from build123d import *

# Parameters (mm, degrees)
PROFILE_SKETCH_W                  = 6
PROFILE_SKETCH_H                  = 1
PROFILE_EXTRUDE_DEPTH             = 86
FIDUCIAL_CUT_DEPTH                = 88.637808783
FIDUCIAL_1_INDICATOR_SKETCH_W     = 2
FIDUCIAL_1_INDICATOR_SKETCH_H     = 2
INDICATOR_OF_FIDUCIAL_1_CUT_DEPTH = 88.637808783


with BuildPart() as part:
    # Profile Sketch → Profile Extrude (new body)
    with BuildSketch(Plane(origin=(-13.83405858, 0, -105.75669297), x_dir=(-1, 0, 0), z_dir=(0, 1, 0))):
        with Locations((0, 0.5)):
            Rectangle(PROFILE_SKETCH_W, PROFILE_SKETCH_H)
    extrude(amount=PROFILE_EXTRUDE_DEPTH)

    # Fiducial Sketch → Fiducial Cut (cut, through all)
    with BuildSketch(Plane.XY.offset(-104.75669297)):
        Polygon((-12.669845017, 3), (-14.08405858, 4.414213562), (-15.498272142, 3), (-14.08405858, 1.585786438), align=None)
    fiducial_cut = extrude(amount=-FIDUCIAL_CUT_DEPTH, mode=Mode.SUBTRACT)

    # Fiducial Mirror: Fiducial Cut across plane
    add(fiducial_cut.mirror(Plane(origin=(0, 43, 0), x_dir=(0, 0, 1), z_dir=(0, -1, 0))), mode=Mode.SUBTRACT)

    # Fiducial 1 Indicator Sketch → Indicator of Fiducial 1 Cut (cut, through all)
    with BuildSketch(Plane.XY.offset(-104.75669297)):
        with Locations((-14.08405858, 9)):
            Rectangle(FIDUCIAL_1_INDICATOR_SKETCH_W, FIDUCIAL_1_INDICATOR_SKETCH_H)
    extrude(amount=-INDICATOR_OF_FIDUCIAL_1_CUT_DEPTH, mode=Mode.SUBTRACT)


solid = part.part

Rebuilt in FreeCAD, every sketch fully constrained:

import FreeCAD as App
import Part
import Sketcher

V = App.Vector
Q = App.Units.Quantity

doc = App.newDocument("Part")
body = doc.addObject("PartDesign::Body", "Body")

sketch1 = body.newObject("Sketcher::SketchObject", "Sketch")
sketch1.AttachmentSupport = (doc.getObject("XZ_Plane"), [""])
sketch1.MapMode = "FlatFace"
sketch1.addGeometry([
    Part.LineSegment(V(-10.8, -104.8, 0), V(-10.8, -105.8, 0)),
    Part.LineSegment(V(-10.8, -105.8, 0), V(-16.8, -105.8, 0)),
    Part.LineSegment(V(-16.8, -105.8, 0), V(-16.8, -104.8, 0)),
    Part.LineSegment(V(-16.8, -104.8, 0), V(-10.8, -104.8, 0)),
], False)
sketch1.addConstraint([
    Sketcher.Constraint("Coincident", 0, 2, 1, 1),
    Sketcher.Constraint("Coincident", 1, 2, 2, 1),
    Sketcher.Constraint("Coincident", 2, 2, 3, 1),
    Sketcher.Constraint("Coincident", 3, 2, 0, 1),
    Sketcher.Constraint("Vertical", 0),
    Sketcher.Constraint("Horizontal", 1),
    Sketcher.Constraint("Vertical", 2),
    Sketcher.Constraint("Horizontal", 3),
    Sketcher.Constraint("DistanceX", 1, 2, 1, 1, Q("6 mm")),
    Sketcher.Constraint("DistanceY", 0, 2, 0, 1, Q("1 mm")),
    Sketcher.Constraint("DistanceX", 0, 2, -1, 1, Q("10.834059 mm")),
    Sketcher.Constraint("DistanceY", 0, 2, -1, 1, Q("105.756693 mm")),
])
pad1 = body.newObject("PartDesign::Pad", "Pad")
pad1.Profile = sketch1
pad1.Length = 86
pad1.Reversed = True

sketch2 = body.newObject("Sketcher::SketchObject", "Sketch001")
sketch2.AttachmentSupport = (doc.getObject("XY_Plane"), [""])
sketch2.MapMode = "FlatFace"
sketch2.AttachmentOffset = App.Placement(V(0, 0, -104.756693), App.Rotation())
sketch2.addGeometry([
    Part.LineSegment(V(-12.7, 3, 0), V(-14.1, 4.4, 0)),
    Part.LineSegment(V(-14.1, 4.4, 0), V(-15.5, 3, 0)),
    Part.LineSegment(V(-15.5, 3, 0), V(-14.1, 1.6, 0)),
    Part.LineSegment(V(-14.1, 1.6, 0), V(-12.7, 3, 0)),
], False)
sketch2.addConstraint([
    Sketcher.Constraint("Coincident", 0, 2, 1, 1),
    Sketcher.Constraint("Coincident", 1, 2, 2, 1),
    Sketcher.Constraint("Coincident", 2, 2, 3, 1),
    Sketcher.Constraint("Coincident", 3, 2, 0, 1),
    Sketcher.Constraint("Perpendicular", 0, 1),
    Sketcher.Constraint("Perpendicular", 1, 2),
    Sketcher.Constraint("Perpendicular", 2, 3),
    Sketcher.Constraint("Horizontal", 1, 2, 3, 2),
    Sketcher.Constraint("Vertical", 0, 2, 2, 2),
    Sketcher.Constraint("Distance", 0, Q("2 mm")),
    Sketcher.Constraint("DistanceY", -1, 1, 1, 2, Q("3 mm")),
    Sketcher.Constraint("DistanceX", 0, 2, -1, 1, Q("14.084059 mm")),
])
pocket1 = body.newObject("PartDesign::Pocket", "Pocket")
pocket1.Profile = sketch2
pocket1.Type = "ThroughAll"
doc.recompute()

datumplane = body.newObject("PartDesign::Plane", "DatumPlane")
datumplane.AttachmentSupport = (doc.getObject("XZ_Plane"), [""])
datumplane.MapMode = "FlatFace"
datumplane.AttachmentOffset = App.Placement(V(0, 0, -43), App.Rotation())
mirrored = body.newObject("PartDesign::Mirrored", "Mirrored")
mirrored.Originals = [pocket1]
mirrored.MirrorPlane = (datumplane, [""])
body.Tip = mirrored

sketch3 = body.newObject("Sketcher::SketchObject", "Sketch002")
sketch3.AttachmentSupport = (doc.getObject("XY_Plane"), [""])
sketch3.MapMode = "FlatFace"
sketch3.AttachmentOffset = App.Placement(V(0, 0, -104.756693), App.Rotation())
sketch3.addGeometry([
    Part.LineSegment(V(-15.1, 10, 0), V(-15.1, 8, 0)),
    Part.LineSegment(V(-15.1, 8, 0), V(-13.1, 8, 0)),
    Part.LineSegment(V(-13.1, 8, 0), V(-13.1, 10, 0)),
    Part.LineSegment(V(-13.1, 10, 0), V(-15.1, 10, 0)),
], False)
sketch3.addConstraint([
    Sketcher.Constraint("Coincident", 0, 2, 1, 1),
    Sketcher.Constraint("Coincident", 1, 2, 2, 1),
    Sketcher.Constraint("Coincident", 2, 2, 3, 1),
    Sketcher.Constraint("Coincident", 3, 2, 0, 1),
    Sketcher.Constraint("Vertical", 0),
    Sketcher.Constraint("Horizontal", 1),
    Sketcher.Constraint("Vertical", 2),
    Sketcher.Constraint("Horizontal", 3),
    Sketcher.Constraint("Equal", 3, 0),
    Sketcher.Constraint("DistanceX", 1, 1, 1, 2, Q("2 mm")),
    Sketcher.Constraint("DistanceY", -1, 1, 0, 2, Q("8 mm")),
    Sketcher.Constraint("DistanceX", 0, 2, -1, 1, Q("15.084059 mm")),
])
pocket2 = body.newObject("PartDesign::Pocket", "Pocket001")
pocket2.Profile = sketch3
pocket2.Type = "ThroughAll"

doc.recompute()
